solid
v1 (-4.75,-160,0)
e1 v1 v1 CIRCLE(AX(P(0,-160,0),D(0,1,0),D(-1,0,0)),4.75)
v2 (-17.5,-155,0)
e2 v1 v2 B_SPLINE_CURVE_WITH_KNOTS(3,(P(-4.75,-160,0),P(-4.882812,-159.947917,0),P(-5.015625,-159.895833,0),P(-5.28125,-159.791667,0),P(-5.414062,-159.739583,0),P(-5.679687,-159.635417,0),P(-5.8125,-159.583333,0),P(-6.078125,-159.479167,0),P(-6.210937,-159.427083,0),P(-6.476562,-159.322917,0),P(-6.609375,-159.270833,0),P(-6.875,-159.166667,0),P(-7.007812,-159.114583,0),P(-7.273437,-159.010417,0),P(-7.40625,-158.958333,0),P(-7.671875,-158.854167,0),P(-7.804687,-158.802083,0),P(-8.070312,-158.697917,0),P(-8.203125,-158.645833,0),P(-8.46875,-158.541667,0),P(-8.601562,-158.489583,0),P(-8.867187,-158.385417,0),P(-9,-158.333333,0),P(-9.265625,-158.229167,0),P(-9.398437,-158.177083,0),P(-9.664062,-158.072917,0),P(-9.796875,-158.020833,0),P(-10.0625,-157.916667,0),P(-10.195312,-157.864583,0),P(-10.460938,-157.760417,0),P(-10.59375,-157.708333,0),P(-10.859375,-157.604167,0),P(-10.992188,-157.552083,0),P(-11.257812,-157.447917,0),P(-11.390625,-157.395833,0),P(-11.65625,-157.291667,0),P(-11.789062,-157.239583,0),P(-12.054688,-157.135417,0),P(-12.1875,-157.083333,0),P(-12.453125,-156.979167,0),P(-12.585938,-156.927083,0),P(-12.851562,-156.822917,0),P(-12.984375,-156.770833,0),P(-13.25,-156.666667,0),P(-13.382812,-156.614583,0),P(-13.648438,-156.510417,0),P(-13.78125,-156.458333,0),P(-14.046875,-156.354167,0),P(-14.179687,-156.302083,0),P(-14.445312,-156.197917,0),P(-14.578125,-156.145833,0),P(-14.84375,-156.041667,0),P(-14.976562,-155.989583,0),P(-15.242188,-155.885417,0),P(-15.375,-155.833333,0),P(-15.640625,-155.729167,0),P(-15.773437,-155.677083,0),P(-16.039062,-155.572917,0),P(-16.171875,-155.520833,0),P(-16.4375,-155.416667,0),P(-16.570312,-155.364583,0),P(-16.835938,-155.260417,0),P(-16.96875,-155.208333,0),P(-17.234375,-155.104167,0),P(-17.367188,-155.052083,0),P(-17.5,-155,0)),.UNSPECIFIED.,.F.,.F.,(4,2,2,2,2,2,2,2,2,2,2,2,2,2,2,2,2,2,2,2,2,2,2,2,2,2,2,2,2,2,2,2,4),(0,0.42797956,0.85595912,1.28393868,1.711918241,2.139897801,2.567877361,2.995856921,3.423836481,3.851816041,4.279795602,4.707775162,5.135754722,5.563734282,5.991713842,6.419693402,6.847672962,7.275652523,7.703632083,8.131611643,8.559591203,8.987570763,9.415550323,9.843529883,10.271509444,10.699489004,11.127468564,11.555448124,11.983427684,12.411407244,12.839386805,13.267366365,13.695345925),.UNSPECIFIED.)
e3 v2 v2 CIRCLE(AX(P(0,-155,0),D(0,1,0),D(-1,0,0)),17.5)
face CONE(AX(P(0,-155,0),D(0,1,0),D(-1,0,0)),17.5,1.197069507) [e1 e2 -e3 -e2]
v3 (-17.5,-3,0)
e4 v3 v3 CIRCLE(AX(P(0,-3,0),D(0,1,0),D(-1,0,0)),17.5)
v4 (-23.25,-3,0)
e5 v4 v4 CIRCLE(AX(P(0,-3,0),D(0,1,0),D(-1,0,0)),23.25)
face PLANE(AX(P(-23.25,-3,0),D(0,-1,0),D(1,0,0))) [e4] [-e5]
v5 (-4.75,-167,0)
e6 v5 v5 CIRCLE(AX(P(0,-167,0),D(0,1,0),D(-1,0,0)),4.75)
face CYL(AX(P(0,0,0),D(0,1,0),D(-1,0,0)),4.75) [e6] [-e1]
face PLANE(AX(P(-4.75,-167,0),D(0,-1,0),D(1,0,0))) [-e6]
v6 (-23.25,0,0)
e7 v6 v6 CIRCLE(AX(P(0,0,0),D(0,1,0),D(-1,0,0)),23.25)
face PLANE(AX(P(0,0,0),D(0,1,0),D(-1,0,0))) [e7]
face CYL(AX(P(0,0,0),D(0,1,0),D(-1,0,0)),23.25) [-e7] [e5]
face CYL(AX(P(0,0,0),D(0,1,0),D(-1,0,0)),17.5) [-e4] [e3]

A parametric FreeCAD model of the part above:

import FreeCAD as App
import Part
import Sketcher


def add_polygon(sketch, points):
    """Adds a closed chain of lines whose ends are joined by coincident constraints."""
    first, n = sketch.GeometryCount, len(points)
    for a, b in zip(points, points[1:] + points[:1]):
        sketch.addGeometry(Part.LineSegment(App.Vector(*a, 0), App.Vector(*b, 0)), False)
    for i in range(n):
        sketch.addConstraint(Sketcher.Constraint("Coincident", first + i, 2, first + (i + 1) % n, 1))

doc = App.newDocument("Part")
params = doc.addObject("Spreadsheet::Sheet", "Params")
for row, (alias, value) in enumerate([
    ("sketch1_height", "3 mm"),
    ("sketch1_height2", "152 mm"),
    ("sketch1_height3", "7 mm"),
    ("sketch1_height4", "167 mm"),
    ("sketch1_width", "23.25 mm"),
    ("revolution_angle", "360 deg"),
], start=1):
    params.set(f"A{row}", alias)
    params.set(f"B{row}", "=" + value)
    params.setAlias(f"B{row}", alias)

body = doc.addObject("PartDesign::Body", "Body")

# Sketch on XY plane
sketch1 = doc.addObject("Sketcher::SketchObject", "Sketch")
body.addObject(sketch1)
sketch1.AttachmentSupport = (doc.XY_Plane, [""])
sketch1.MapMode = "FlatFace"
add_polygon(sketch1, [(0, 0), (-23.25, 0), (-23.25, -3), (-17.5, -3), (-17.5, -155), (-4.75, -160), (-4.75, -167), (0, -167)])  # lines 0-7
sketch1.addConstraint([
    Sketcher.Constraint("Horizontal", 0),
    Sketcher.Constraint("Vertical", 1),
    Sketcher.Constraint("Horizontal", 2),
    Sketcher.Constraint("Vertical", 3),
    Sketcher.Constraint("Vertical", 5),
    Sketcher.Constraint("Horizontal", 6),
    Sketcher.Constraint("Vertical", 7),
    Sketcher.Constraint("Coincident", 7, 2, -1, 1),
    Sketcher.Constraint("DistanceY", 1, 2, 1, 1, 3.0),
    Sketcher.Constraint("DistanceY", 3, 2, 3, 1, 152.0),
    Sketcher.Constraint("DistanceY", 5, 2, 5, 1, 7.0),
    Sketcher.Constraint("DistanceY", 7, 1, 7, 2, 167.0),
    Sketcher.Constraint("DistanceX", 0, 2, 0, 1, 23.25),
    Sketcher.Constraint("DistanceX", 2, 1, 2, 2, 5.75),
    Sketcher.Constraint("DistanceX", 6, 1, 6, 2, 4.75),
])
sketch1.setExpression("Constraints[16]", "Params.sketch1_height")
sketch1.setExpression("Constraints[17]", "Params.sketch1_height2")
sketch1.setExpression("Constraints[18]", "Params.sketch1_height3")
sketch1.setExpression("Constraints[19]", "Params.sketch1_height4")
sketch1.setExpression("Constraints[20]", "Params.sketch1_width")
revolution = doc.addObject("PartDesign::Revolution", "Revolution")
body.addObject(revolution)
revolution.Profile = sketch1
revolution.ReferenceAxis = (sketch1, ["V_Axis"])
revolution.setExpression("Angle", "Params.revolution_angle")

doc.recompute()
